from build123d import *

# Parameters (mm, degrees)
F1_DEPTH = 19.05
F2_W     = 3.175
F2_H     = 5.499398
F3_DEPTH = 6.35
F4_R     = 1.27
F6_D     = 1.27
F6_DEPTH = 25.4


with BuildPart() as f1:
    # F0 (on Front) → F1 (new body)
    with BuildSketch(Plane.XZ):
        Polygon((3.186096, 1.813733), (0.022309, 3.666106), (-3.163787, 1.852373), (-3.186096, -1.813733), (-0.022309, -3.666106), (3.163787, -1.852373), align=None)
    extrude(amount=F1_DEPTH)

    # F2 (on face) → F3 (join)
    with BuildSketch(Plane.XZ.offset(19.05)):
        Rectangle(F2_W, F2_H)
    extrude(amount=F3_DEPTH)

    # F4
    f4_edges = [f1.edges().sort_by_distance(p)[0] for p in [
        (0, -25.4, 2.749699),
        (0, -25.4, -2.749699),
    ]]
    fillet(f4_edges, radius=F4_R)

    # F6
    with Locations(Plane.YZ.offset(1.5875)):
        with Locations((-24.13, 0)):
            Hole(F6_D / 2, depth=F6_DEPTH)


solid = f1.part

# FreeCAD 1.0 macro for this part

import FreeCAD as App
import Part
import Sketcher

V = App.Vector
Q = App.Units.Quantity


def edges_at(feature, points):
    """Names of the edges that pass closest to the given points."""
    edges = feature.Shape.Edges
    near = lambda p: min(range(len(edges)), key=lambda i: edges[i].distToShape(Part.Vertex(*p))[0])
    return sorted({f"Edge{near(p) + 1}" for p in points})


def add_polygon(sketch, points):
    """Adds a closed chain of lines whose ends are joined by coincident constraints."""
    first, n = sketch.GeometryCount, len(points)
    for a, b in zip(points, points[1:] + points[:1]):
        sketch.addGeometry(Part.LineSegment(App.Vector(*a, 0), App.Vector(*b, 0)), False)
    for i in range(n):
        sketch.addConstraint(Sketcher.Constraint("Coincident", first + i, 2, first + (i + 1) % n, 1))

doc = App.newDocument("Part")
params = doc.addObject("Spreadsheet::Sheet", "Params")
for row, (alias, value) in enumerate([
    ("pad1_length", "0.75 in"),
    ("sketch2_width", "0.125 in"),
    ("pad2_length", "0.25 in"),
    ("fillet_radius", "0.05 in"),
    ("sketch3_diameter", "0.05 in"),
    ("hole_diameter", "0.05 in"),
    ("hole_depth", "1 in"),
], start=1):
    params.set(f"A{row}", alias)
    params.set(f"B{row}", "=" + value)
    params.setAlias(f"B{row}", alias)

body = doc.addObject("PartDesign::Body", "Body")

# Sketch on XZ plane
sketch1 = doc.addObject("Sketcher::SketchObject", "Sketch")
body.addObject(sketch1)
sketch1.AttachmentSupport = (doc.XZ_Plane, [""])
sketch1.MapMode = "FlatFace"
add_polygon(sketch1, [(3.2, 1.8), (0, 3.7), (-3.2, 1.9), (-3.2, -1.8), (0, -3.7), (3.2, -1.9)])  # lines 0-5
sketch1.addConstraint(Sketcher.Constraint("Symmetric", 0, 2, 3, 2, -1, 1))
sketch1.addConstraint(Sketcher.Constraint("Symmetric", 1, 2, 4, 2, -1, 1))
sketch1.addConstraint(Sketcher.Constraint("Symmetric", 2, 2, 5, 2, -1, 1))
sketch1.addConstraint(Sketcher.Constraint("Equal", 0, 1))
sketch1.addConstraint(Sketcher.Constraint("Equal", 1, 2))
sketch1.addConstraint(Sketcher.Constraint("DistanceX", -1, 1, 0, 2, 0.022309))
sketch1.addConstraint(Sketcher.Constraint("DistanceX", 2, 2, 1, 2, 0.022309))
sketch1.addConstraint(Sketcher.Constraint("DistanceY", 2, 2, 0, 2, 5.479839))
sketch1.addConstraint(Sketcher.Constraint("DistanceX", 1, 2, 3, 2, 3.141478))
pad1 = doc.addObject("PartDesign::Pad", "Pad")
body.addObject(pad1)
pad1.Profile = sketch1
pad1.setExpression("Length", "Params.pad1_length")

# Sketch on XZ plane
sketch2 = doc.addObject("Sketcher::SketchObject", "Sketch001")
body.addObject(sketch2)
sketch2.AttachmentSupport = (doc.XZ_Plane, [""])
sketch2.MapMode = "FlatFace"
sketch2.AttachmentOffset = App.Placement(V(0, 0, 0.75 * 25.4), App.Rotation())
add_polygon(sketch2, [(-1.6, 2.7), (-1.6, -2.7), (1.6, -2.7), (1.6, 2.7)])  # lines 0-3
sketch2.addConstraint(Sketcher.Constraint("Vertical", 0))
sketch2.addConstraint(Sketcher.Constraint("Horizontal", 1))
sketch2.addConstraint(Sketcher.Constraint("Vertical", 2))
sketch2.addConstraint(Sketcher.Constraint("Horizontal", 3))
sketch2.addConstraint(Sketcher.Constraint("Symmetric", 0, 2, 2, 2, -1, 1))
sketch2.addConstraint(Sketcher.Constraint("DistanceX", 1, 1, 1, 2, Q("0.125 in")))
sketch2.addConstraint(Sketcher.Constraint("DistanceY", 0, 2, 0, 1, 5.499398))
sketch2.setExpression("Constraints[9]", "Params.sketch2_width")
pad2 = doc.addObject("PartDesign::Pad", "Pad001")
body.addObject(pad2)
pad2.Profile = sketch2
pad2.setExpression("Length", "Params.pad2_length")
doc.recompute()

fillet = doc.addObject("PartDesign::Fillet", "Fillet")
body.addObject(fillet)
fillet.Base = (pad2, edges_at(pad2, [(0, -25.4, 2.75), (0, -25.4, -2.75)]))
fillet.setExpression("Radius", "Params.fillet_radius")

# Sketch on YZ plane
sketch3 = doc.addObject("Sketcher::SketchObject", "Sketch002")
body.addObject(sketch3)
sketch3.AttachmentSupport = (doc.YZ_Plane, [""])
sketch3.MapMode = "FlatFace"
sketch3.AttachmentOffset = App.Placement(V(0, 0, 0.0625 * 25.4), App.Rotation())
sketch3.addGeometry(Part.Circle(V(-24.1, 0, 0), V(0, 0, 1), 0.6), False)
sketch3.addConstraint(Sketcher.Constraint("PointOnObject", 0, 3, -1))
sketch3.addConstraint(Sketcher.Constraint("Diameter", 0, Q("0.05 in")))
sketch3.addConstraint(Sketcher.Constraint("DistanceX", 0, 3, -1, 1, Q("0.95 in")))
sketch3.setExpression("Constraints[1]", "Params.sketch3_diameter")
doc.recompute()
hole = doc.addObject("PartDesign::Hole", "Hole")
body.addObject(hole)
hole.Profile = sketch3
hole.ThreadType = "None"
hole.setExpression("Diameter", "Params.hole_diameter")
hole.DepthType = "Dimension"
hole.setExpression("Depth", "Params.hole_depth")
hole.DrillPoint = "Flat"

doc.recompute()
